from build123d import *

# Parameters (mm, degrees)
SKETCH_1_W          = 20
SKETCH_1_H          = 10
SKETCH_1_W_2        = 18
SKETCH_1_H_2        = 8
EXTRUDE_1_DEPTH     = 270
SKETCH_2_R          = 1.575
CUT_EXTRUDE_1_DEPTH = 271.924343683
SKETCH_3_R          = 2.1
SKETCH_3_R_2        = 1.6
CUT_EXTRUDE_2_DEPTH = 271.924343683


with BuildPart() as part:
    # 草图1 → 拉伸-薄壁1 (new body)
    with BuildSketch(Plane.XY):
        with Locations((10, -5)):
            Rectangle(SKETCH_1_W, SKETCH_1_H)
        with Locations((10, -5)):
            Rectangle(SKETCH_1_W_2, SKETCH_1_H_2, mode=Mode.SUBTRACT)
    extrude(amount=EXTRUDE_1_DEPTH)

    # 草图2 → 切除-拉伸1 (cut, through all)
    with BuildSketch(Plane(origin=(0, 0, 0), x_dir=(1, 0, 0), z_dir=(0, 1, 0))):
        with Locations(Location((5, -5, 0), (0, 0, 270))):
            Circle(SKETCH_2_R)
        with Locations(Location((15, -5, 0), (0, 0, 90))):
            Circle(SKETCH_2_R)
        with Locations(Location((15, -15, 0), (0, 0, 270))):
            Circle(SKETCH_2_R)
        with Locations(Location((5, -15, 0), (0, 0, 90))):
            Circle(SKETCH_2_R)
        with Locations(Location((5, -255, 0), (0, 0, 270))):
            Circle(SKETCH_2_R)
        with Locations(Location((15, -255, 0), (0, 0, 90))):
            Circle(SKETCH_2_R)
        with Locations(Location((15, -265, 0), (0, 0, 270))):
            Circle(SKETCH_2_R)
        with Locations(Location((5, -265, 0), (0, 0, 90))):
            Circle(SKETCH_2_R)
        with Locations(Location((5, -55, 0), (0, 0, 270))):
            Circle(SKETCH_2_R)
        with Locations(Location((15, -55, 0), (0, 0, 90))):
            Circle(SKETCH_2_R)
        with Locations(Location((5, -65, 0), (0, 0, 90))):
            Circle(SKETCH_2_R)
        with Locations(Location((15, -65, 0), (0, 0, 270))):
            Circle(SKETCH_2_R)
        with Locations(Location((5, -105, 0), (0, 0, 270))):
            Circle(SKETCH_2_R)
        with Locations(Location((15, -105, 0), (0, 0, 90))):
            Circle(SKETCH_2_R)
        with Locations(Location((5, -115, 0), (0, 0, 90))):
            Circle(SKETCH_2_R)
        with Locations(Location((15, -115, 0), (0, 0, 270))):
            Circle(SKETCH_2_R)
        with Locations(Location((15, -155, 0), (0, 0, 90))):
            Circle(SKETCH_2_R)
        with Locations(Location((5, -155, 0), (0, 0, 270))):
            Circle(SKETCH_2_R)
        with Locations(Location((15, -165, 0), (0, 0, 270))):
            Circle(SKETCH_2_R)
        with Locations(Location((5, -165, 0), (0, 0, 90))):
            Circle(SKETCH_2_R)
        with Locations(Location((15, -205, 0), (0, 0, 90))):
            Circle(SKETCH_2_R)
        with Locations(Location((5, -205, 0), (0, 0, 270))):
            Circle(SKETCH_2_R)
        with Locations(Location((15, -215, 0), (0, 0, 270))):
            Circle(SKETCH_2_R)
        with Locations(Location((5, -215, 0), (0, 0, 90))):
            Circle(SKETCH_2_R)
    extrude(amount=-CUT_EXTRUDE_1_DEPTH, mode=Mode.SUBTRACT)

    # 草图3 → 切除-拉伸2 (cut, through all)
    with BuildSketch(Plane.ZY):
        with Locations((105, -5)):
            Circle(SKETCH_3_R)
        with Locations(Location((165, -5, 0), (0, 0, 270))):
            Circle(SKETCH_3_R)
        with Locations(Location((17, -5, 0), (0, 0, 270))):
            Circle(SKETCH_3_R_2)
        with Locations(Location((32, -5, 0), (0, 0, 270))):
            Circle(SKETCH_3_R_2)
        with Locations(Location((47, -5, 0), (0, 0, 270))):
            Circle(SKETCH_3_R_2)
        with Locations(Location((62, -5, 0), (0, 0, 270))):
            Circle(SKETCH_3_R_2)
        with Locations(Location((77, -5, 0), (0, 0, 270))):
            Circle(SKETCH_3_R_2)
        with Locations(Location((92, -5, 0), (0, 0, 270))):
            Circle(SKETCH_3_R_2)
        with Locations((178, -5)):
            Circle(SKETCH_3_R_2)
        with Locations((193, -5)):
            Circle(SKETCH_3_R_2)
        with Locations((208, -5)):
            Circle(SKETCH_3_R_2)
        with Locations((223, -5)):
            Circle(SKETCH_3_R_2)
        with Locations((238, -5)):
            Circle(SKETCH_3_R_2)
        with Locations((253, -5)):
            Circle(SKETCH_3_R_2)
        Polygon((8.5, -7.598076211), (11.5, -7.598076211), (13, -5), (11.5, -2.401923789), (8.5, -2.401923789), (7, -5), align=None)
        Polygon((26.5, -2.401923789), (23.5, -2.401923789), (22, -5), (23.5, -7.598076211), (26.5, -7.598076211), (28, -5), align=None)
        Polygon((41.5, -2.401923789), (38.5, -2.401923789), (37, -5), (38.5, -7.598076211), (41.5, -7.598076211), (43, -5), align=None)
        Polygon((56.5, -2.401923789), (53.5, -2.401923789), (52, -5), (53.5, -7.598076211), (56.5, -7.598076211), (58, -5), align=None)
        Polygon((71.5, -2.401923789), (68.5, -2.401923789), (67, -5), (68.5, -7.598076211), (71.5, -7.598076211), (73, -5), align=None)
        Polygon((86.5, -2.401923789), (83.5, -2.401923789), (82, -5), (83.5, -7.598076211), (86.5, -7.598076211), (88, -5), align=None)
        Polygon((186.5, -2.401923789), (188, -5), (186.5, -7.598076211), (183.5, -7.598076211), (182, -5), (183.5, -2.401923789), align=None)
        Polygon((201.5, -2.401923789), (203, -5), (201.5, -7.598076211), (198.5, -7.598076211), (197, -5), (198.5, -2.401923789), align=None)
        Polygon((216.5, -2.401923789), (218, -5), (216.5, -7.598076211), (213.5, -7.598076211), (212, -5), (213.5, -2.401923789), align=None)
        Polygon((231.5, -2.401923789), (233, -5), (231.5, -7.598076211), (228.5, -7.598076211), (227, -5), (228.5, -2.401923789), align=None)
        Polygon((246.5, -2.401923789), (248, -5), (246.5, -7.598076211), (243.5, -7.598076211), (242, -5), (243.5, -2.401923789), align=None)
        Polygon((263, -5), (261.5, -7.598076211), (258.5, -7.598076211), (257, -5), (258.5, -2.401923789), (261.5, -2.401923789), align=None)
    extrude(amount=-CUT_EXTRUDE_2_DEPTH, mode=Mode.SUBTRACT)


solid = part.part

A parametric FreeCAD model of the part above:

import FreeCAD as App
import Part
import Sketcher
Q = App.Units.Quantity

doc = App.newDocument("Part")
body = doc.addObject("PartDesign::Body", "Body")

sketch1 = doc.addObject("Sketcher::SketchObject", "Sketch")
body.addObject(sketch1)
sketch1.AttachmentSupport = (doc.XY_Plane, [""])
sketch1.MapMode = "FlatFace"
sketch1.addGeometry(Part.LineSegment(App.Vector(0, 0, 0), App.Vector(0, -10, 0)), False)
sketch1.addGeometry(Part.LineSegment(App.Vector(0, -10, 0), App.Vector(20, -10, 0)), False)
sketch1.addGeometry(Part.LineSegment(App.Vector(20, -10, 0), App.Vector(20, 0, 0)), False)
sketch1.addGeometry(Part.LineSegment(App.Vector(20, 0, 0), App.Vector(0, 0, 0)), False)
sketch1.addGeometry(Part.LineSegment(App.Vector(19, -9, 0), App.Vector(1, -9, 0)), False)
sketch1.addGeometry(Part.LineSegment(App.Vector(1, -9, 0), App.Vector(1, -1, 0)), False)
sketch1.addGeometry(Part.LineSegment(App.Vector(1, -1, 0), App.Vector(19, -1, 0)), False)
sketch1.addGeometry(Part.LineSegment(App.Vector(19, -1, 0), App.Vector(19, -9, 0)), False)
sketch1.addConstraint(Sketcher.Constraint("Coincident", 0, 2, 1, 1))
sketch1.addConstraint(Sketcher.Constraint("Coincident", 1, 2, 2, 1))
sketch1.addConstraint(Sketcher.Constraint("Coincident", 2, 2, 3, 1))
sketch1.addConstraint(Sketcher.Constraint("Coincident", 3, 2, 0, 1))
sketch1.addConstraint(Sketcher.Constraint("Coincident", 4, 2, 5, 1))
sketch1.addConstraint(Sketcher.Constraint("Coincident", 5, 2, 6, 1))
sketch1.addConstraint(Sketcher.Constraint("Coincident", 6, 2, 7, 1))
sketch1.addConstraint(Sketcher.Constraint("Coincident", 7, 2, 4, 1))
sketch1.addConstraint(Sketcher.Constraint("Vertical", 0))
sketch1.addConstraint(Sketcher.Constraint("Horizontal", 1))
sketch1.addConstraint(Sketcher.Constraint("Vertical", 2))
sketch1.addConstraint(Sketcher.Constraint("Horizontal", 3))
sketch1.addConstraint(Sketcher.Constraint("Horizontal", 4))
sketch1.addConstraint(Sketcher.Constraint("Vertical", 5))
sketch1.addConstraint(Sketcher.Constraint("Horizontal", 6))
sketch1.addConstraint(Sketcher.Constraint("Vertical", 7))
sketch1.addConstraint(Sketcher.Constraint("Coincident", 3, 2, -1, 1))
sketch1.addConstraint(Sketcher.Constraint("DistanceX", 1, 1, 1, 2, 20.0))
sketch1.addConstraint(Sketcher.Constraint("DistanceX", 4, 2, 4, 1, 18.0))
sketch1.addConstraint(Sketcher.Constraint("DistanceY", 0, 2, 0, 1, 10.0))
sketch1.addConstraint(Sketcher.Constraint("DistanceY", 5, 1, 5, 2, 8.0))
sketch1.addConstraint(Sketcher.Constraint("DistanceX", -1, 1, 4, 2, 1.0))
sketch1.addConstraint(Sketcher.Constraint("DistanceY", 4, 2, -1, 1, 9.0))
pad1 = doc.addObject("PartDesign::Pad", "Pad")
body.addObject(pad1)
pad1.Profile = sketch1
pad1.Length = 270

sketch2 = doc.addObject("Sketcher::SketchObject", "Sketch001")
body.addObject(sketch2)
sketch2.AttachmentSupport = (doc.XZ_Plane, [""])
sketch2.MapMode = "FlatFace"
sketch2.addGeometry(Part.Circle(App.Vector(5, 5, 0), App.Vector(0, 0, 1), 1.575), False)
sketch2.addGeometry(Part.Circle(App.Vector(15, 5, 0), App.Vector(0, 0, 1), 1.575), False)
sketch2.addGeometry(Part.Circle(App.Vector(15, 15, 0), App.Vector(0, 0, 1), 1.575), False)
sketch2.addGeometry(Part.Circle(App.Vector(5, 15, 0), App.Vector(0, 0, 1), 1.575), False)
sketch2.addGeometry(Part.Circle(App.Vector(5, 255, 0), App.Vector(0, 0, 1), 1.575), False)
sketch2.addGeometry(Part.Circle(App.Vector(15, 255, 0), App.Vector(0, 0, 1), 1.575), False)
sketch2.addGeometry(Part.Circle(App.Vector(15, 265, 0), App.Vector(0, 0, 1), 1.575), False)
sketch2.addGeometry(Part.Circle(App.Vector(5, 265, 0), App.Vector(0, 0, 1), 1.575), False)
sketch2.addGeometry(Part.Circle(App.Vector(5, 55, 0), App.Vector(0, 0, 1), 1.575), False)
sketch2.addGeometry(Part.Circle(App.Vector(15, 55, 0), App.Vector(0, 0, 1), 1.575), False)
sketch2.addGeometry(Part.Circle(App.Vector(5, 65, 0), App.Vector(0, 0, 1), 1.575), False)
sketch2.addGeometry(Part.Circle(App.Vector(15, 65, 0), App.Vector(0, 0, 1), 1.575), False)
sketch2.addGeometry(Part.Circle(App.Vector(5, 105, 0), App.Vector(0, 0, 1), 1.575), False)
sketch2.addGeometry(Part.Circle(App.Vector(15, 105, 0), App.Vector(0, 0, 1), 1.575), False)
sketch2.addGeometry(Part.Circle(App.Vector(5, 115, 0), App.Vector(0, 0, 1), 1.575), False)
sketch2.addGeometry(Part.Circle(App.Vector(15, 115, 0), App.Vector(0, 0, 1), 1.575), False)
sketch2.addGeometry(Part.Circle(App.Vector(15, 155, 0), App.Vector(0, 0, 1), 1.575), False)
sketch2.addGeometry(Part.Circle(App.Vector(5, 155, 0), App.Vector(0, 0, 1), 1.575), False)
sketch2.addGeometry(Part.Circle(App.Vector(15, 165, 0), App.Vector(0, 0, 1), 1.575), False)
sketch2.addGeometry(Part.Circle(App.Vector(5, 165, 0), App.Vector(0, 0, 1), 1.575), False)
sketch2.addGeometry(Part.Circle(App.Vector(15, 205, 0), App.Vector(0, 0, 1), 1.575), False)
sketch2.addGeometry(Part.Circle(App.Vector(5, 205, 0), App.Vector(0, 0, 1), 1.575), False)
sketch2.addGeometry(Part.Circle(App.Vector(15, 215, 0), App.Vector(0, 0, 1), 1.575), False)
sketch2.addGeometry(Part.Circle(App.Vector(5, 215, 0), App.Vector(0, 0, 1), 1.575), False)
sketch2.addConstraint(Sketcher.Constraint("Equal", 0, 1))
sketch2.addConstraint(Sketcher.Constraint("Equal", 1, 2))
sketch2.addConstraint(Sketcher.Constraint("Equal", 2, 3))
sketch2.addConstraint(Sketcher.Constraint("Equal", 3, 4))
sketch2.addConstraint(Sketcher.Constraint("Equal", 4, 5))
sketch2.addConstraint(Sketcher.Constraint("Equal", 5, 6))
sketch2.addConstraint(Sketcher.Constraint("Equal", 6, 7))
sketch2.addConstraint(Sketcher.Constraint("Equal", 7, 8))
sketch2.addConstraint(Sketcher.Constraint("Equal", 8, 9))
sketch2.addConstraint(Sketcher.Constraint("Equal", 9, 10))
sketch2.addConstraint(Sketcher.Constraint("Equal", 10, 11))
sketch2.addConstraint(Sketcher.Constraint("Equal", 11, 12))
sketch2.addConstraint(Sketcher.Constraint("Equal", 12, 13))
sketch2.addConstraint(Sketcher.Constraint("Equal", 13, 14))
sketch2.addConstraint(Sketcher.Constraint("Equal", 14, 15))
sketch2.addConstraint(Sketcher.Constraint("Equal", 15, 16))
sketch2.addConstraint(Sketcher.Constraint("Equal", 16, 17))
sketch2.addConstraint(Sketcher.Constraint("Equal", 17, 18))
sketch2.addConstraint(Sketcher.Constraint("Equal", 18, 19))
sketch2.addConstraint(Sketcher.Constraint("Equal", 19, 20))
sketch2.addConstraint(Sketcher.Constraint("Equal", 20, 21))
sketch2.addConstraint(Sketcher.Constraint("Equal", 21, 22))
sketch2.addConstraint(Sketcher.Constraint("Equal", 22, 23))
sketch2.addConstraint(Sketcher.Constraint("Horizontal", 0, 3, 1, 3))
sketch2.addConstraint(Sketcher.Constraint("Horizontal", 2, 3, 3, 3))
sketch2.addConstraint(Sketcher.Constraint("Horizontal", 4, 3, 5, 3))
sketch2.addConstraint(Sketcher.Constraint("Horizontal", 6, 3, 7, 3))
sketch2.addConstraint(Sketcher.Constraint("Horizontal", 8, 3, 9, 3))
sketch2.addConstraint(Sketcher.Constraint("Horizontal", 10, 3, 11, 3))
sketch2.addConstraint(Sketcher.Constraint("Horizontal", 12, 3, 13, 3))
sketch2.addConstraint(Sketcher.Constraint("Horizontal", 14, 3, 15, 3))
sketch2.addConstraint(Sketcher.Constraint("Horizontal", 16, 3, 17, 3))
sketch2.addConstraint(Sketcher.Constraint("Horizontal", 18, 3, 19, 3))
sketch2.addConstraint(Sketcher.Constraint("Horizontal", 20, 3, 21, 3))
sketch2.addConstraint(Sketcher.Constraint("Horizontal", 22, 3, 23, 3))
sketch2.addConstraint(Sketcher.Constraint("Vertical", 1, 3, 2, 3))
sketch2.addConstraint(Sketcher.Constraint("Vertical", 0, 3, 3, 3))
sketch2.addConstraint(Sketcher.Constraint("Vertical", 3, 3, 4, 3))
sketch2.addConstraint(Sketcher.Constraint("Vertical", 2, 3, 5, 3))
sketch2.addConstraint(Sketcher.Constraint("Vertical", 5, 3, 6, 3))
sketch2.addConstraint(Sketcher.Constraint("Vertical", 4, 3, 7, 3))
sketch2.addConstraint(Sketcher.Constraint("Vertical", 7, 3, 8, 3))
sketch2.addConstraint(Sketcher.Constraint("Vertical", 6, 3, 9, 3))
sketch2.addConstraint(Sketcher.Constraint("Vertical", 8, 3, 10, 3))
sketch2.addConstraint(Sketcher.Constraint("Vertical", 9, 3, 11, 3))
sketch2.addConstraint(Sketcher.Constraint("Vertical", 10, 3, 12, 3))
sketch2.addConstraint(Sketcher.Constraint("Vertical", 11, 3, 13, 3))
sketch2.addConstraint(Sketcher.Constraint("Vertical", 12, 3, 14, 3))
sketch2.addConstraint(Sketcher.Constraint("Vertical", 13, 3, 15, 3))
sketch2.addConstraint(Sketcher.Constraint("Vertical", 15, 3, 16, 3))
sketch2.addConstraint(Sketcher.Constraint("Vertical", 14, 3, 17, 3))
sketch2.addConstraint(Sketcher.Constraint("Vertical", 16, 3, 18, 3))
sketch2.addConstraint(Sketcher.Constraint("Vertical", 17, 3, 19, 3))
sketch2.addConstraint(Sketcher.Constraint("Vertical", 18, 3, 20, 3))
sketch2.addConstraint(Sketcher.Constraint("Vertical", 19, 3, 21, 3))
sketch2.addConstraint(Sketcher.Constraint("Vertical", 20, 3, 22, 3))
sketch2.addConstraint(Sketcher.Constraint("Vertical", 21, 3, 23, 3))
sketch2.addConstraint(Sketcher.Constraint("Diameter", 0, 3.15))
sketch2.addConstraint(Sketcher.Constraint("DistanceX", -1, 1, 0, 3, 5.0))
sketch2.addConstraint(Sketcher.Constraint("DistanceY", -1, 1, 0, 3, 5.0))
sketch2.addConstraint(Sketcher.Constraint("DistanceX", -1, 1, 1, 3, 15.0))
sketch2.addConstraint(Sketcher.Constraint("DistanceY", -1, 1, 2, 3, 15.0))
sketch2.addConstraint(Sketcher.Constraint("DistanceY", -1, 1, 4, 3, 255.0))
sketch2.addConstraint(Sketcher.Constraint("DistanceY", -1, 1, 6, 3, 265.0))
sketch2.addConstraint(Sketcher.Constraint("DistanceY", -1, 1, 8, 3, 55.0))
sketch2.addConstraint(Sketcher.Constraint("DistanceY", -1, 1, 10, 3, 65.0))
sketch2.addConstraint(Sketcher.Constraint("DistanceY", -1, 1, 12, 3, 105.0))
sketch2.addConstraint(Sketcher.Constraint("DistanceY", -1, 1, 14, 3, 115.0))
sketch2.addConstraint(Sketcher.Constraint("DistanceY", -1, 1, 16, 3, 155.0))
sketch2.addConstraint(Sketcher.Constraint("DistanceY", -1, 1, 18, 3, 165.0))
sketch2.addConstraint(Sketcher.Constraint("DistanceY", -1, 1, 20, 3, 205.0))
sketch2.addConstraint(Sketcher.Constraint("DistanceY", -1, 1, 22, 3, 215.0))
pocket1 = doc.addObject("PartDesign::Pocket", "Pocket")
body.addObject(pocket1)
pocket1.Profile = sketch2
pocket1.Type = "ThroughAll"
pocket1.Reversed = True

sketch3 = doc.addObject("Sketcher::SketchObject", "Sketch002")
body.addObject(sketch3)
sketch3.AttachmentSupport = (doc.YZ_Plane, [""])
sketch3.MapMode = "FlatFace"
sketch3.addGeometry(Part.Circle(App.Vector(-5, 105, 0), App.Vector(0, 0, 1), 2.1), False)
sketch3.addGeometry(Part.Circle(App.Vector(-5, 165, 0), App.Vector(0, 0, 1), 2.1), False)
sketch3.addGeometry(Part.Circle(App.Vector(-5, 17, 0), App.Vector(0, 0, 1), 1.6), False)
sketch3.addGeometry(Part.Circle(App.Vector(-5, 32, 0), App.Vector(0, 0, 1), 1.6), False)
sketch3.addGeometry(Part.Circle(App.Vector(-5, 47, 0), App.Vector(0, 0, 1), 1.6), False)
sketch3.addGeometry(Part.Circle(App.Vector(-5, 62, 0), App.Vector(0, 0, 1), 1.6), False)
sketch3.addGeometry(Part.Circle(App.Vector(-5, 77, 0), App.Vector(0, 0, 1), 1.6), False)
sketch3.addGeometry(Part.Circle(App.Vector(-5, 92, 0), App.Vector(0, 0, 1), 1.6), False)
sketch3.addGeometry(Part.Circle(App.Vector(-5, 178, 0), App.Vector(0, 0, 1), 1.6), False)
sketch3.addGeometry(Part.Circle(App.Vector(-5, 193, 0), App.Vector(0, 0, 1), 1.6), False)
sketch3.addGeometry(Part.Circle(App.Vector(-5, 208, 0), App.Vector(0, 0, 1), 1.6), False)
sketch3.addGeometry(Part.Circle(App.Vector(-5, 223, 0), App.Vector(0, 0, 1), 1.6), False)
sketch3.addGeometry(Part.Circle(App.Vector(-5, 238, 0), App.Vector(0, 0, 1), 1.6), False)
sketch3.addGeometry(Part.Circle(App.Vector(-5, 253, 0), App.Vector(0, 0, 1), 1.6), False)
sketch3.addGeometry(Part.LineSegment(App.Vector(-7.598076, 8.5, 0), App.Vector(-7.598076, 11.5, 0)), False)
sketch3.addGeometry(Part.LineSegment(App.Vector(-7.598076, 11.5, 0), App.Vector(-5, 13, 0)), False)
sketch3.addGeometry(Part.LineSegment(App.Vector(-5, 13, 0), App.Vector(-2.401924, 11.5, 0)), False)
sketch3.addGeometry(Part.LineSegment(App.Vector(-2.401924, 11.5, 0), App.Vector(-2.401924, 8.5, 0)), False)
sketch3.addGeometry(Part.LineSegment(App.Vector(-2.401924, 8.5, 0), App.Vector(-5, 7, 0)), False)
sketch3.addGeometry(Part.LineSegment(App.Vector(-5, 7, 0), App.Vector(-7.598076, 8.5, 0)), False)
sketch3.addGeometry(Part.LineSegment(App.Vector(-2.401924, 26.5, 0), App.Vector(-2.401924, 23.5, 0)), False)
sketch3.addGeometry(Part.LineSegment(App.Vector(-2.401924, 23.5, 0), App.Vector(-5, 22, 0)), False)
sketch3.addGeometry(Part.LineSegment(App.Vector(-5, 22, 0), App.Vector(-7.598076, 23.5, 0)), False)
sketch3.addGeometry(Part.LineSegment(App.Vector(-7.598076, 23.5, 0), App.Vector(-7.598076, 26.5, 0)), False)
sketch3.addGeometry(Part.LineSegment(App.Vector(-7.598076, 26.5, 0), App.Vector(-5, 28, 0)), False)
sketch3.addGeometry(Part.LineSegment(App.Vector(-5, 28, 0), App.Vector(-2.401924, 26.5, 0)), False)
sketch3.addGeometry(Part.LineSegment(App.Vector(-2.401924, 41.5, 0), App.Vector(-2.401924, 38.5, 0)), False)
sketch3.addGeometry(Part.LineSegment(App.Vector(-2.401924, 38.5, 0), App.Vector(-5, 37, 0)), False)
sketch3.addGeometry(Part.LineSegment(App.Vector(-5, 37, 0), App.Vector(-7.598076, 38.5, 0)), False)
sketch3.addGeometry(Part.LineSegment(App.Vector(-7.598076, 38.5, 0), App.Vector(-7.598076, 41.5, 0)), False)
sketch3.addGeometry(Part.LineSegment(App.Vector(-7.598076, 41.5, 0), App.Vector(-5, 43, 0)), False)
sketch3.addGeometry(Part.LineSegment(App.Vector(-5, 43, 0), App.Vector(-2.401924, 41.5, 0)), False)
sketch3.addGeometry(Part.LineSegment(App.Vector(-2.401924, 56.5, 0), App.Vector(-2.401924, 53.5, 0)), False)
sketch3.addGeometry(Part.LineSegment(App.Vector(-2.401924, 53.5, 0), App.Vector(-5, 52, 0)), False)
sketch3.addGeometry(Part.LineSegment(App.Vector(-5, 52, 0), App.Vector(-7.598076, 53.5, 0)), False)
sketch3.addGeometry(Part.LineSegment(App.Vector(-7.598076, 53.5, 0), App.Vector(-7.598076, 56.5, 0)), False)
sketch3.addGeometry(Part.LineSegment(App.Vector(-7.598076, 56.5, 0), App.Vector(-5, 58, 0)), False)
sketch3.addGeometry(Part.LineSegment(App.Vector(-5, 58, 0), App.Vector(-2.401924, 56.5, 0)), False)
sketch3.addGeometry(Part.LineSegment(App.Vector(-2.401924, 71.5, 0), App.Vector(-2.401924, 68.5, 0)), False)
sketch3.addGeometry(Part.LineSegment(App.Vector(-2.401924, 68.5, 0), App.Vector(-5, 67, 0)), False)
sketch3.addGeometry(Part.LineSegment(App.Vector(-5, 67, 0), App.Vector(-7.598076, 68.5, 0)), False)
sketch3.addGeometry(Part.LineSegment(App.Vector(-7.598076, 68.5, 0), App.Vector(-7.598076, 71.5, 0)), False)
sketch3.addGeometry(Part.LineSegment(App.Vector(-7.598076, 71.5, 0), App.Vector(-5, 73, 0)), False)
sketch3.addGeometry(Part.LineSegment(App.Vector(-5, 73, 0), App.Vector(-2.401924, 71.5, 0)), False)
sketch3.addGeometry(Part.LineSegment(App.Vector(-2.401924, 86.5, 0), App.Vector(-2.401924, 83.5, 0)), False)
sketch3.addGeometry(Part.LineSegment(App.Vector(-2.401924, 83.5, 0), App.Vector(-5, 82, 0)), False)
sketch3.addGeometry(Part.LineSegment(App.Vector(-5, 82, 0), App.Vector(-7.598076, 83.5, 0)), False)
sketch3.addGeometry(Part.LineSegment(App.Vector(-7.598076, 83.5, 0), App.Vector(-7.598076, 86.5, 0)), False)
sketch3.addGeometry(Part.LineSegment(App.Vector(-7.598076, 86.5, 0), App.Vector(-5, 88, 0)), False)
sketch3.addGeometry(Part.LineSegment(App.Vector(-5, 88, 0), App.Vector(-2.401924, 86.5, 0)), False)
sketch3.addGeometry(Part.LineSegment(App.Vector(-5, 188, 0), App.Vector(-2.401924, 186.5, 0)), False)
sketch3.addGeometry(Part.LineSegment(App.Vector(-2.401924, 186.5, 0), App.Vector(-2.401924, 183.5, 0)), False)
sketch3.addGeometry(Part.LineSegment(App.Vector(-2.401924, 183.5, 0), App.Vector(-5, 182, 0)), False)
sketch3.addGeometry(Part.LineSegment(App.Vector(-5, 182, 0), App.Vector(-7.598076, 183.5, 0)), False)
sketch3.addGeometry(Part.LineSegment(App.Vector(-7.598076, 183.5, 0), App.Vector(-7.598076, 186.5, 0)), False)
sketch3.addGeometry(Part.LineSegment(App.Vector(-7.598076, 186.5, 0), App.Vector(-5, 188, 0)), False)
sketch3.addGeometry(Part.LineSegment(App.Vector(-5, 203, 0), App.Vector(-2.401924, 201.5, 0)), False)
sketch3.addGeometry(Part.LineSegment(App.Vector(-2.401924, 201.5, 0), App.Vector(-2.401924, 198.5, 0)), False)
sketch3.addGeometry(Part.LineSegment(App.Vector(-2.401924, 198.5, 0), App.Vector(-5, 197, 0)), False)
sketch3.addGeometry(Part.LineSegment(App.Vector(-5, 197, 0), App.Vector(-7.598076, 198.5, 0)), False)
sketch3.addGeometry(Part.LineSegment(App.Vector(-7.598076, 198.5, 0), App.Vector(-7.598076, 201.5, 0)), False)
sketch3.addGeometry(Part.LineSegment(App.Vector(-7.598076, 201.5, 0), App.Vector(-5, 203, 0)), False)
sketch3.addGeometry(Part.LineSegment(App.Vector(-5, 218, 0), App.Vector(-2.401924, 216.5, 0)), False)
sketch3.addGeometry(Part.LineSegment(App.Vector(-2.401924, 216.5, 0), App.Vector(-2.401924, 213.5, 0)), False)
sketch3.addGeometry(Part.LineSegment(App.Vector(-2.401924, 213.5, 0), App.Vector(-5, 212, 0)), False)
sketch3.addGeometry(Part.LineSegment(App.Vector(-5, 212, 0), App.Vector(-7.598076, 213.5, 0)), False)
sketch3.addGeometry(Part.LineSegment(App.Vector(-7.598076, 213.5, 0), App.Vector(-7.598076, 216.5, 0)), False)
sketch3.addGeometry(Part.LineSegment(App.Vector(-7.598076, 216.5, 0), App.Vector(-5, 218, 0)), False)
sketch3.addGeometry(Part.LineSegment(App.Vector(-5, 233, 0), App.Vector(-2.401924, 231.5, 0)), False)
sketch3.addGeometry(Part.LineSegment(App.Vector(-2.401924, 231.5, 0), App.Vector(-2.401924, 228.5, 0)), False)
sketch3.addGeometry(Part.LineSegment(App.Vector(-2.401924, 228.5, 0), App.Vector(-5, 227, 0)), False)
sketch3.addGeometry(Part.LineSegment(App.Vector(-5, 227, 0), App.Vector(-7.598076, 228.5, 0)), False)
sketch3.addGeometry(Part.LineSegment(App.Vector(-7.598076, 228.5, 0), App.Vector(-7.598076, 231.5, 0)), False)
sketch3.addGeometry(Part.LineSegment(App.Vector(-7.598076, 231.5, 0), App.Vector(-5, 233, 0)), False)
sketch3.addGeometry(Part.LineSegment(App.Vector(-5, 248, 0), App.Vector(-2.401924, 246.5, 0)), False)
sketch3.addGeometry(Part.LineSegment(App.Vector(-2.401924, 246.5, 0), App.Vector(-2.401924, 243.5, 0)), False)
sketch3.addGeometry(Part.LineSegment(App.Vector(-2.401924, 243.5, 0), App.Vector(-5, 242, 0)), False)
sketch3.addGeometry(Part.LineSegment(App.Vector(-5, 242, 0), App.Vector(-7.598076, 243.5, 0)), False)
sketch3.addGeometry(Part.LineSegment(App.Vector(-7.598076, 243.5, 0), App.Vector(-7.598076, 246.5, 0)), False)
sketch3.addGeometry(Part.LineSegment(App.Vector(-7.598076, 246.5, 0), App.Vector(-5, 248, 0)), False)
sketch3.addGeometry(Part.LineSegment(App.Vector(-7.598076, 261.5, 0), App.Vector(-5, 263, 0)), False)
sketch3.addGeometry(Part.LineSegment(App.Vector(-5, 263, 0), App.Vector(-2.401924, 261.5, 0)), False)
sketch3.addGeometry(Part.LineSegment(App.Vector(-2.401924, 261.5, 0), App.Vector(-2.401924, 258.5, 0)), False)
sketch3.addGeometry(Part.LineSegment(App.Vector(-2.401924, 258.5, 0), App.Vector(-5, 257, 0)), False)
sketch3.addGeometry(Part.LineSegment(App.Vector(-5, 257, 0), App.Vector(-7.598076, 258.5, 0)), False)
sketch3.addGeometry(Part.LineSegment(App.Vector(-7.598076, 258.5, 0), App.Vector(-7.598076, 261.5, 0)), False)
sketch3.addConstraint(Sketcher.Constraint("Coincident", 14, 2, 15, 1))
sketch3.addConstraint(Sketcher.Constraint("Coincident", 15, 2, 16, 1))
sketch3.addConstraint(Sketcher.Constraint("Coincident", 16, 2, 17, 1))
sketch3.addConstraint(Sketcher.Constraint("Coincident", 17, 2, 18, 1))
sketch3.addConstraint(Sketcher.Constraint("Coincident", 18, 2, 19, 1))
sketch3.addConstraint(Sketcher.Constraint("Coincident", 19, 2, 14, 1))
sketch3.addConstraint(Sketcher.Constraint("Coincident", 20, 2, 21, 1))
sketch3.addConstraint(Sketcher.Constraint("Coincident", 21, 2, 22, 1))
sketch3.addConstraint(Sketcher.Constraint("Coincident", 22, 2, 23, 1))
sketch3.addConstraint(Sketcher.Constraint("Coincident", 23, 2, 24, 1))
sketch3.addConstraint(Sketcher.Constraint("Coincident", 24, 2, 25, 1))
sketch3.addConstraint(Sketcher.Constraint("Coincident", 25, 2, 20, 1))
sketch3.addConstraint(Sketcher.Constraint("Coincident", 26, 2, 27, 1))
sketch3.addConstraint(Sketcher.Constraint("Coincident", 27, 2, 28, 1))
sketch3.addConstraint(Sketcher.Constraint("Coincident", 28, 2, 29, 1))
sketch3.addConstraint(Sketcher.Constraint("Coincident", 29, 2, 30, 1))
sketch3.addConstraint(Sketcher.Constraint("Coincident", 30, 2, 31, 1))
sketch3.addConstraint(Sketcher.Constraint("Coincident", 31, 2, 26, 1))
sketch3.addConstraint(Sketcher.Constraint("Coincident", 32, 2, 33, 1))
sketch3.addConstraint(Sketcher.Constraint("Coincident", 33, 2, 34, 1))
sketch3.addConstraint(Sketcher.Constraint("Coincident", 34, 2, 35, 1))
sketch3.addConstraint(Sketcher.Constraint("Coincident", 35, 2, 36, 1))
sketch3.addConstraint(Sketcher.Constraint("Coincident", 36, 2, 37, 1))
sketch3.addConstraint(Sketcher.Constraint("Coincident", 37, 2, 32, 1))
sketch3.addConstraint(Sketcher.Constraint("Coincident", 38, 2, 39, 1))
sketch3.addConstraint(Sketcher.Constraint("Coincident", 39, 2, 40, 1))
sketch3.addConstraint(Sketcher.Constraint("Coincident", 40, 2, 41, 1))
sketch3.addConstraint(Sketcher.Constraint("Coincident", 41, 2, 42, 1))
sketch3.addConstraint(Sketcher.Constraint("Coincident", 42, 2, 43, 1))
sketch3.addConstraint(Sketcher.Constraint("Coincident", 43, 2, 38, 1))
sketch3.addConstraint(Sketcher.Constraint("Coincident", 44, 2, 45, 1))
sketch3.addConstraint(Sketcher.Constraint("Coincident", 45, 2, 46, 1))
sketch3.addConstraint(Sketcher.Constraint("Coincident", 46, 2, 47, 1))
sketch3.addConstraint(Sketcher.Constraint("Coincident", 47, 2, 48, 1))
sketch3.addConstraint(Sketcher.Constraint("Coincident", 48, 2, 49, 1))
sketch3.addConstraint(Sketcher.Constraint("Coincident", 49, 2, 44, 1))
sketch3.addConstraint(Sketcher.Constraint("Coincident", 50, 2, 51, 1))
sketch3.addConstraint(Sketcher.Constraint("Coincident", 51, 2, 52, 1))
sketch3.addConstraint(Sketcher.Constraint("Coincident", 52, 2, 53, 1))
sketch3.addConstraint(Sketcher.Constraint("Coincident", 53, 2, 54, 1))
sketch3.addConstraint(Sketcher.Constraint("Coincident", 54, 2, 55, 1))
sketch3.addConstraint(Sketcher.Constraint("Coincident", 55, 2, 50, 1))
sketch3.addConstraint(Sketcher.Constraint("Coincident", 56, 2, 57, 1))
sketch3.addConstraint(Sketcher.Constraint("Coincident", 57, 2, 58, 1))
sketch3.addConstraint(Sketcher.Constraint("Coincident", 58, 2, 59, 1))
sketch3.addConstraint(Sketcher.Constraint("Coincident", 59, 2, 60, 1))
sketch3.addConstraint(Sketcher.Constraint("Coincident", 60, 2, 61, 1))
sketch3.addConstraint(Sketcher.Constraint("Coincident", 61, 2, 56, 1))
sketch3.addConstraint(Sketcher.Constraint("Coincident", 62, 2, 63, 1))
sketch3.addConstraint(Sketcher.Constraint("Coincident", 63, 2, 64, 1))
sketch3.addConstraint(Sketcher.Constraint("Coincident", 64, 2, 65, 1))
sketch3.addConstraint(Sketcher.Constraint("Coincident", 65, 2, 66, 1))
sketch3.addConstraint(Sketcher.Constraint("Coincident", 66, 2, 67, 1))
sketch3.addConstraint(Sketcher.Constraint("Coincident", 67, 2, 62, 1))
sketch3.addConstraint(Sketcher.Constraint("Coincident", 68, 2, 69, 1))
sketch3.addConstraint(Sketcher.Constraint("Coincident", 69, 2, 70, 1))
sketch3.addConstraint(Sketcher.Constraint("Coincident", 70, 2, 71, 1))
sketch3.addConstraint(Sketcher.Constraint("Coincident", 71, 2, 72, 1))
sketch3.addConstraint(Sketcher.Constraint("Coincident", 72, 2, 73, 1))
sketch3.addConstraint(Sketcher.Constraint("Coincident", 73, 2, 68, 1))
sketch3.addConstraint(Sketcher.Constraint("Coincident", 74, 2, 75, 1))
sketch3.addConstraint(Sketcher.Constraint("Coincident", 75, 2, 76, 1))
sketch3.addConstraint(Sketcher.Constraint("Coincident", 76, 2, 77, 1))
sketch3.addConstraint(Sketcher.Constraint("Coincident", 77, 2, 78, 1))
sketch3.addConstraint(Sketcher.Constraint("Coincident", 78, 2, 79, 1))
sketch3.addConstraint(Sketcher.Constraint("Coincident", 79, 2, 74, 1))
sketch3.addConstraint(Sketcher.Constraint("Coincident", 80, 2, 81, 1))
sketch3.addConstraint(Sketcher.Constraint("Coincident", 81, 2, 82, 1))
sketch3.addConstraint(Sketcher.Constraint("Coincident", 82, 2, 83, 1))
sketch3.addConstraint(Sketcher.Constraint("Coincident", 83, 2, 84, 1))
sketch3.addConstraint(Sketcher.Constraint("Coincident", 84, 2, 85, 1))
sketch3.addConstraint(Sketcher.Constraint("Coincident", 85, 2, 80, 1))
sketch3.addConstraint(Sketcher.Constraint("Vertical", 14))
sketch3.addConstraint(Sketcher.Constraint("Vertical", 17))
sketch3.addConstraint(Sketcher.Constraint("Vertical", 20))
sketch3.addConstraint(Sketcher.Constraint("Vertical", 23))
sketch3.addConstraint(Sketcher.Constraint("Vertical", 26))
sketch3.addConstraint(Sketcher.Constraint("Vertical", 29))
sketch3.addConstraint(Sketcher.Constraint("Vertical", 32))
sketch3.addConstraint(Sketcher.Constraint("Vertical", 35))
sketch3.addConstraint(Sketcher.Constraint("Vertical", 38))
sketch3.addConstraint(Sketcher.Constraint("Vertical", 41))
sketch3.addConstraint(Sketcher.Constraint("Vertical", 44))
sketch3.addConstraint(Sketcher.Constraint("Vertical", 47))
sketch3.addConstraint(Sketcher.Constraint("Vertical", 51))
sketch3.addConstraint(Sketcher.Constraint("Vertical", 54))
sketch3.addConstraint(Sketcher.Constraint("Vertical", 57))
sketch3.addConstraint(Sketcher.Constraint("Vertical", 60))
sketch3.addConstraint(Sketcher.Constraint("Vertical", 63))
sketch3.addConstraint(Sketcher.Constraint("Vertical", 66))
sketch3.addConstraint(Sketcher.Constraint("Vertical", 69))
sketch3.addConstraint(Sketcher.Constraint("Vertical", 72))
sketch3.addConstraint(Sketcher.Constraint("Vertical", 75))
sketch3.addConstraint(Sketcher.Constraint("Vertical", 78))
sketch3.addConstraint(Sketcher.Constraint("Vertical", 82))
sketch3.addConstraint(Sketcher.Constraint("Vertical", 85))
sketch3.addConstraint(Sketcher.Constraint("Equal", 0, 1))
sketch3.addConstraint(Sketcher.Constraint("Equal", 2, 3))
sketch3.addConstraint(Sketcher.Constraint("Equal", 3, 4))
sketch3.addConstraint(Sketcher.Constraint("Equal", 4, 5))
sketch3.addConstraint(Sketcher.Constraint("Equal", 5, 6))
sketch3.addConstraint(Sketcher.Constraint("Equal", 6, 7))
sketch3.addConstraint(Sketcher.Constraint("Equal", 7, 8))
sketch3.addConstraint(Sketcher.Constraint("Equal", 8, 9))
sketch3.addConstraint(Sketcher.Constraint("Equal", 9, 10))
sketch3.addConstraint(Sketcher.Constraint("Equal", 10, 11))
sketch3.addConstraint(Sketcher.Constraint("Equal", 11, 12))
sketch3.addConstraint(Sketcher.Constraint("Equal", 12, 13))
sketch3.addConstraint(Sketcher.Constraint("Parallel", 15, 18))
sketch3.addConstraint(Sketcher.Constraint("Parallel", 16, 19))
sketch3.addConstraint(Sketcher.Constraint("Parallel", 18, 21))
sketch3.addConstraint(Sketcher.Constraint("Parallel", 19, 22))
sketch3.addConstraint(Sketcher.Constraint("Parallel", 21, 24))
sketch3.addConstraint(Sketcher.Constraint("Parallel", 22, 25))
sketch3.addConstraint(Sketcher.Constraint("Parallel", 24, 27))
sketch3.addConstraint(Sketcher.Constraint("Parallel", 25, 28))
sketch3.addConstraint(Sketcher.Constraint("Parallel", 27, 30))
sketch3.addConstraint(Sketcher.Constraint("Parallel", 28, 31))
sketch3.addConstraint(Sketcher.Constraint("Parallel", 30, 33))
sketch3.addConstraint(Sketcher.Constraint("Parallel", 31, 34))
sketch3.addConstraint(Sketcher.Constraint("Parallel", 33, 36))
sketch3.addConstraint(Sketcher.Constraint("Parallel", 34, 37))
sketch3.addConstraint(Sketcher.Constraint("Parallel", 36, 39))
sketch3.addConstraint(Sketcher.Constraint("Parallel", 37, 40))
sketch3.addConstraint(Sketcher.Constraint("Parallel", 39, 42))
sketch3.addConstraint(Sketcher.Constraint("Parallel", 40, 43))
sketch3.addConstraint(Sketcher.Constraint("Parallel", 42, 45))
sketch3.addConstraint(Sketcher.Constraint("Parallel", 43, 46))
sketch3.addConstraint(Sketcher.Constraint("Parallel", 45, 48))
sketch3.addConstraint(Sketcher.Constraint("Parallel", 46, 49))
sketch3.addConstraint(Sketcher.Constraint("Parallel", 49, 50))
sketch3.addConstraint(Sketcher.Constraint("Parallel", 48, 52))
sketch3.addConstraint(Sketcher.Constraint("Parallel", 50, 53))
sketch3.addConstraint(Sketcher.Constraint("Parallel", 52, 55))
sketch3.addConstraint(Sketcher.Constraint("Parallel", 53, 56))
sketch3.addConstraint(Sketcher.Constraint("Parallel", 55, 58))
sketch3.addConstraint(Sketcher.Constraint("Parallel", 56, 59))
sketch3.addConstraint(Sketcher.Constraint("Parallel", 58, 61))
sketch3.addConstraint(Sketcher.Constraint("Parallel", 59, 62))
sketch3.addConstraint(Sketcher.Constraint("Parallel", 61, 64))
sketch3.addConstraint(Sketcher.Constraint("Parallel", 62, 65))
sketch3.addConstraint(Sketcher.Constraint("Parallel", 64, 67))
sketch3.addConstraint(Sketcher.Constraint("Parallel", 65, 68))
sketch3.addConstraint(Sketcher.Constraint("Parallel", 67, 70))
sketch3.addConstraint(Sketcher.Constraint("Parallel", 68, 71))
sketch3.addConstraint(Sketcher.Constraint("Parallel", 70, 73))
sketch3.addConstraint(Sketcher.Constraint("Parallel", 71, 74))
sketch3.addConstraint(Sketcher.Constraint("Parallel", 73, 76))
sketch3.addConstraint(Sketcher.Constraint("Parallel", 74, 77))
sketch3.addConstraint(Sketcher.Constraint("Parallel", 76, 79))
sketch3.addConstraint(Sketcher.Constraint("Parallel", 79, 80))
sketch3.addConstraint(Sketcher.Constraint("Parallel", 77, 81))
sketch3.addConstraint(Sketcher.Constraint("Parallel", 80, 83))
sketch3.addConstraint(Sketcher.Constraint("Parallel", 81, 84))
sketch3.addConstraint(Sketcher.Constraint("Horizontal", 14, 2, 16, 2))
sketch3.addConstraint(Sketcher.Constraint("Horizontal", 17, 2, 19, 2))
sketch3.addConstraint(Sketcher.Constraint("Horizontal", 20, 2, 22, 2))
sketch3.addConstraint(Sketcher.Constraint("Horizontal", 23, 2, 25, 2))
sketch3.addConstraint(Sketcher.Constraint("Horizontal", 26, 2, 28, 2))
sketch3.addConstraint(Sketcher.Constraint("Horizontal", 29, 2, 31, 2))
sketch3.addConstraint(Sketcher.Constraint("Horizontal", 32, 2, 34, 2))
sketch3.addConstraint(Sketcher.Constraint("Horizontal", 35, 2, 37, 2))
sketch3.addConstraint(Sketcher.Constraint("Horizontal", 38, 2, 40, 2))
sketch3.addConstraint(Sketcher.Constraint("Horizontal", 41, 2, 43, 2))
sketch3.addConstraint(Sketcher.Constraint("Horizontal", 44, 2, 46, 2))
sketch3.addConstraint(Sketcher.Constraint("Horizontal", 47, 2, 49, 2))
sketch3.addConstraint(Sketcher.Constraint("Horizontal", 51, 2, 53, 2))
sketch3.addConstraint(Sketcher.Constraint("Horizontal", 50, 2, 54, 2))
sketch3.addConstraint(Sketcher.Constraint("Horizontal", 57, 2, 59, 2))
sketch3.addConstraint(Sketcher.Constraint("Horizontal", 56, 2, 60, 2))
sketch3.addConstraint(Sketcher.Constraint("Horizontal", 63, 2, 65, 2))
sketch3.addConstraint(Sketcher.Constraint("Horizontal", 62, 2, 66, 2))
sketch3.addConstraint(Sketcher.Constraint("Horizontal", 69, 2, 71, 2))
sketch3.addConstraint(Sketcher.Constraint("Horizontal", 68, 2, 72, 2))
sketch3.addConstraint(Sketcher.Constraint("Horizontal", 75, 2, 77, 2))
sketch3.addConstraint(Sketcher.Constraint("Horizontal", 74, 2, 78, 2))
sketch3.addConstraint(Sketcher.Constraint("Horizontal", 82, 2, 84, 2))
sketch3.addConstraint(Sketcher.Constraint("Horizontal", 81, 2, 85, 2))
sketch3.addConstraint(Sketcher.Constraint("Vertical", 0, 3, 1, 3))
sketch3.addConstraint(Sketcher.Constraint("Vertical", 1, 3, 2, 3))
sketch3.addConstraint(Sketcher.Constraint("Vertical", 2, 3, 3, 3))
sketch3.addConstraint(Sketcher.Constraint("Vertical", 3, 3, 4, 3))
sketch3.addConstraint(Sketcher.Constraint("Vertical", 4, 3, 5, 3))
sketch3.addConstraint(Sketcher.Constraint("Vertical", 5, 3, 6, 3))
sketch3.addConstraint(Sketcher.Constraint("Vertical", 6, 3, 7, 3))
sketch3.addConstraint(Sketcher.Constraint("Vertical", 7, 3, 8, 3))
sketch3.addConstraint(Sketcher.Constraint("Vertical", 8, 3, 9, 3))
sketch3.addConstraint(Sketcher.Constraint("Vertical", 9, 3, 10, 3))
sketch3.addConstraint(Sketcher.Constraint("Vertical", 10, 3, 11, 3))
sketch3.addConstraint(Sketcher.Constraint("Vertical", 11, 3, 12, 3))
sketch3.addConstraint(Sketcher.Constraint("Vertical", 12, 3, 13, 3))
sketch3.addConstraint(Sketcher.Constraint("Vertical", 13, 3, 15, 2))
sketch3.addConstraint(Sketcher.Constraint("Vertical", 15, 2, 18, 2))
sketch3.addConstraint(Sketcher.Constraint("Vertical", 17, 2, 20, 2))
sketch3.addConstraint(Sketcher.Constraint("Vertical", 18, 2, 21, 2))
sketch3.addConstraint(Sketcher.Constraint("Vertical", 25, 2, 26, 2))
sketch3.addConstraint(Sketcher.Constraint("Vertical", 24, 2, 27, 2))
sketch3.addConstraint(Sketcher.Constraint("Vertical", 31, 2, 32, 2))
sketch3.addConstraint(Sketcher.Constraint("Vertical", 30, 2, 33, 2))
sketch3.addConstraint(Sketcher.Constraint("Vertical", 37, 2, 38, 2))
sketch3.addConstraint(Sketcher.Constraint("Vertical", 36, 2, 39, 2))
sketch3.addConstraint(Sketcher.Constraint("Vertical", 43, 2, 44, 2))
sketch3.addConstraint(Sketcher.Constraint("Vertical", 42, 2, 45, 2))
sketch3.addConstraint(Sketcher.Constraint("Vertical", 49, 2, 50, 2))
sketch3.addConstraint(Sketcher.Constraint("Vertical", 48, 2, 52, 2))
sketch3.addConstraint(Sketcher.Constraint("Vertical", 51, 2, 56, 2))
sketch3.addConstraint(Sketcher.Constraint("Vertical", 55, 2, 58, 2))
sketch3.addConstraint(Sketcher.Constraint("Vertical", 57, 2, 62, 2))
sketch3.addConstraint(Sketcher.Constraint("Vertical", 61, 2, 64, 2))
sketch3.addConstraint(Sketcher.Constraint("Vertical", 63, 2, 68, 2))
sketch3.addConstraint(Sketcher.Constraint("Vertical", 67, 2, 70, 2))
sketch3.addConstraint(Sketcher.Constraint("Vertical", 69, 2, 74, 2))
sketch3.addConstraint(Sketcher.Constraint("Vertical", 73, 2, 76, 2))
sketch3.addConstraint(Sketcher.Constraint("Vertical", 79, 2, 80, 2))
sketch3.addConstraint(Sketcher.Constraint("Vertical", 75, 2, 81, 2))
sketch3.addConstraint(Sketcher.Constraint("Equal", 17, 20))
sketch3.addConstraint(Sketcher.Constraint("Equal", 23, 26))
sketch3.addConstraint(Sketcher.Constraint("Equal", 29, 32))
sketch3.addConstraint(Sketcher.Constraint("Equal", 35, 38))
sketch3.addConstraint(Sketcher.Constraint("Equal", 41, 44))
sketch3.addConstraint(Sketcher.Constraint("Equal", 47, 51))
sketch3.addConstraint(Sketcher.Constraint("Equal", 54, 57))
sketch3.addConstraint(Sketcher.Constraint("Equal", 60, 63))
sketch3.addConstraint(Sketcher.Constraint("Equal", 66, 69))
sketch3.addConstraint(Sketcher.Constraint("Equal", 72, 75))
sketch3.addConstraint(Sketcher.Constraint("Equal", 78, 82))
sketch3.addConstraint(Sketcher.Constraint("Diameter", 0, 4.2))
sketch3.addConstraint(Sketcher.Constraint("Diameter", 2, 3.2))
sketch3.addConstraint(Sketcher.Constraint("DistanceY", 14, 1, 14, 2, 3.0))
sketch3.addConstraint(Sketcher.Constraint("Angle", 15, Q("30 deg")))
sketch3.addConstraint(Sketcher.Constraint("Distance", 15, 3.0))
sketch3.addConstraint(Sketcher.Constraint("DistanceX", 0, 3, -1, 1, 5.0))
sketch3.addConstraint(Sketcher.Constraint("DistanceY", -1, 1, 0, 3, 105.0))
sketch3.addConstraint(Sketcher.Constraint("DistanceY", -1, 1, 1, 3, 165.0))
sketch3.addConstraint(Sketcher.Constraint("DistanceY", -1, 1, 2, 3, 17.0))
sketch3.addConstraint(Sketcher.Constraint("DistanceY", -1, 1, 3, 3, 32.0))
sketch3.addConstraint(Sketcher.Constraint("DistanceY", -1, 1, 4, 3, 47.0))
sketch3.addConstraint(Sketcher.Constraint("DistanceY", -1, 1, 5, 3, 62.0))
sketch3.addConstraint(Sketcher.Constraint("DistanceY", -1, 1, 6, 3, 77.0))
sketch3.addConstraint(Sketcher.Constraint("DistanceY", -1, 1, 7, 3, 92.0))
sketch3.addConstraint(Sketcher.Constraint("DistanceY", -1, 1, 8, 3, 178.0))
sketch3.addConstraint(Sketcher.Constraint("DistanceY", -1, 1, 9, 3, 193.0))
sketch3.addConstraint(Sketcher.Constraint("DistanceY", -1, 1, 10, 3, 208.0))
sketch3.addConstraint(Sketcher.Constraint("DistanceY", -1, 1, 11, 3, 223.0))
sketch3.addConstraint(Sketcher.Constraint("DistanceY", -1, 1, 12, 3, 238.0))
sketch3.addConstraint(Sketcher.Constraint("DistanceY", -1, 1, 13, 3, 253.0))
sketch3.addConstraint(Sketcher.Constraint("DistanceY", -1, 1, 15, 2, 13.0))
sketch3.addConstraint(Sketcher.Constraint("DistanceY", -1, 1, 21, 2, 22.0))
sketch3.addConstraint(Sketcher.Constraint("DistanceY", -1, 1, 27, 2, 37.0))
sketch3.addConstraint(Sketcher.Constraint("DistanceY", -1, 1, 33, 2, 52.0))
sketch3.addConstraint(Sketcher.Constraint("DistanceY", -1, 1, 39, 2, 67.0))
sketch3.addConstraint(Sketcher.Constraint("DistanceY", -1, 1, 45, 2, 82.0))
sketch3.addConstraint(Sketcher.Constraint("DistanceY", -1, 1, 52, 2, 182.0))
sketch3.addConstraint(Sketcher.Constraint("DistanceY", -1, 1, 58, 2, 197.0))
sketch3.addConstraint(Sketcher.Constraint("DistanceY", -1, 1, 64, 2, 212.0))
sketch3.addConstraint(Sketcher.Constraint("DistanceY", -1, 1, 70, 2, 227.0))
sketch3.addConstraint(Sketcher.Constraint("DistanceY", -1, 1, 76, 2, 242.0))
sketch3.addConstraint(Sketcher.Constraint("DistanceY", -1, 1, 80, 2, 263.0))
pocket2 = doc.addObject("PartDesign::Pocket", "Pocket001")
body.addObject(pocket2)
pocket2.Profile = sketch3
pocket2.Type = "ThroughAll"
pocket2.Reversed = True

doc.recompute()
